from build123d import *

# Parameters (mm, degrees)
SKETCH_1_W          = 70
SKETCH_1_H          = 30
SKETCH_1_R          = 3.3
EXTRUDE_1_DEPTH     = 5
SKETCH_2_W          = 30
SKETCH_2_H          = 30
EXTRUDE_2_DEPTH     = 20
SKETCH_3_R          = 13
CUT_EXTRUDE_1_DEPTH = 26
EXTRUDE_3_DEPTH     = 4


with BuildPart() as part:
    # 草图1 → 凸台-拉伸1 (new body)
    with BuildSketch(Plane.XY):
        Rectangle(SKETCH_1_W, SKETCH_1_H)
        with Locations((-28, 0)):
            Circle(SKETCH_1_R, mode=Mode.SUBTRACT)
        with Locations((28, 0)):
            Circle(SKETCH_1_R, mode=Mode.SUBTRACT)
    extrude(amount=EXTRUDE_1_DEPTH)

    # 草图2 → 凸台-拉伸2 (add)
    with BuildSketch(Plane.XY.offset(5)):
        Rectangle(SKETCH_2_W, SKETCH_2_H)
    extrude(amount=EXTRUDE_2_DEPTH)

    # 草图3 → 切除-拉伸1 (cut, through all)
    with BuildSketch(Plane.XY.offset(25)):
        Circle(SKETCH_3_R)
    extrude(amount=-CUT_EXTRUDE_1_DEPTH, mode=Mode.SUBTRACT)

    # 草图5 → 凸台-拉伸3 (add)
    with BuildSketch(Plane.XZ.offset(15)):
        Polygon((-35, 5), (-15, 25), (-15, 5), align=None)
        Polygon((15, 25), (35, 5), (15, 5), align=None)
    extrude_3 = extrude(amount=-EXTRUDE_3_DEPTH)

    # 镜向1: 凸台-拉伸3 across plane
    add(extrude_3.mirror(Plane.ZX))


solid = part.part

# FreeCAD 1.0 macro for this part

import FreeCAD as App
import Part
import Sketcher
from FreeCAD import Vector

doc = App.newDocument("Part")
params = doc.addObject("Spreadsheet::Sheet", "Params")
for row, (alias, value) in enumerate([
    ("sketch1_diameter", "6.6 mm"),
    ("sketch1_width", "70 mm"),
    ("sketch1_height", "30 mm"),
    ("pad1_length", "5 mm"),
    ("sketch2_width", "30 mm"),
    ("pad2_length", "20 mm"),
    ("sketch3_diameter", "26 mm"),
    ("sketch4_width", "20 mm"),
    ("pad3_length", "4 mm"),
], start=1):
    params.set(f"A{row}", alias)
    params.set(f"B{row}", "=" + value)
    params.setAlias(f"B{row}", alias)

body = doc.addObject("PartDesign::Body", "Body")

# Sketch on XY plane
sketch1 = doc.addObject("Sketcher::SketchObject", "Sketch")
body.addObject(sketch1)
sketch1.AttachmentSupport = (doc.XY_Plane, [""])
sketch1.MapMode = "FlatFace"
sketch1.addGeometry([
    Part.LineSegment(Vector(-35, 15, 0), Vector(-35, -15, 0)),  # 0
    Part.LineSegment(Vector(-35, -15, 0), Vector(35, -15, 0)),  # 1
    Part.LineSegment(Vector(35, -15, 0), Vector(35, 15, 0)),  # 2
    Part.LineSegment(Vector(35, 15, 0), Vector(-35, 15, 0)),  # 3
    Part.Circle(Vector(-28, 0, 0), Vector(0, 0, 1), 3.3),  # 4
    Part.Circle(Vector(28, 0, 0), Vector(0, 0, 1), 3.3),  # 5
], False)
sketch1.addConstraint([
    Sketcher.Constraint("Coincident", 0, 2, 1, 1),
    Sketcher.Constraint("Coincident", 1, 2, 2, 1),
    Sketcher.Constraint("Coincident", 2, 2, 3, 1),
    Sketcher.Constraint("Coincident", 3, 2, 0, 1),
    Sketcher.Constraint("Vertical", 0),
    Sketcher.Constraint("Horizontal", 1),
    Sketcher.Constraint("Vertical", 2),
    Sketcher.Constraint("Horizontal", 3),
    Sketcher.Constraint("Equal", 4, 5),
    Sketcher.Constraint("Symmetric", 4, 3, 5, 3, -1, 1),
    Sketcher.Constraint("Symmetric", 0, 2, 2, 2, -1, 1),
    Sketcher.Constraint("PointOnObject", 4, 3, -1),
    Sketcher.Constraint("Diameter", 4, 6.6),
    Sketcher.Constraint("DistanceX", 1, 1, 1, 2, 70.0),
    Sketcher.Constraint("DistanceY", 0, 2, 0, 1, 30.0),
    Sketcher.Constraint("DistanceX", 4, 3, -1, 1, 28.0),
])
sketch1.setExpression("Constraints[12]", "Params.sketch1_diameter")
sketch1.setExpression("Constraints[13]", "Params.sketch1_width")
sketch1.setExpression("Constraints[14]", "Params.sketch1_height")
pad1 = doc.addObject("PartDesign::Pad", "Pad")
body.addObject(pad1)
pad1.Profile = sketch1
pad1.setExpression("Length", "Params.pad1_length")

# Sketch on XY plane
sketch2 = doc.addObject("Sketcher::SketchObject", "Sketch001")
body.addObject(sketch2)
sketch2.AttachmentSupport = (doc.XY_Plane, [""])
sketch2.MapMode = "FlatFace"
sketch2.AttachmentOffset = App.Placement(Vector(0, 0, 5), App.Rotation())
sketch2.addGeometry([
    Part.LineSegment(Vector(-15, 15, 0), Vector(-15, -15, 0)),
    Part.LineSegment(Vector(-15, -15, 0), Vector(15, -15, 0)),
    Part.LineSegment(Vector(15, -15, 0), Vector(15, 15, 0)),
    Part.LineSegment(Vector(15, 15, 0), Vector(-15, 15, 0)),
], False)
sketch2.addConstraint([
    Sketcher.Constraint("Coincident", 0, 2, 1, 1),
    Sketcher.Constraint("Coincident", 1, 2, 2, 1),
    Sketcher.Constraint("Coincident", 2, 2, 3, 1),
    Sketcher.Constraint("Coincident", 3, 2, 0, 1),
    Sketcher.Constraint("Vertical", 0),
    Sketcher.Constraint("Horizontal", 1),
    Sketcher.Constraint("Vertical", 2),
    Sketcher.Constraint("Horizontal", 3),
    Sketcher.Constraint("Symmetric", 0, 2, 2, 2, -1, 1),
    Sketcher.Constraint("Equal", 3, 0),
    Sketcher.Constraint("DistanceX", 1, 1, 1, 2, 30.0),
])
sketch2.setExpression("Constraints[10]", "Params.sketch2_width")
pad2 = doc.addObject("PartDesign::Pad", "Pad001")
body.addObject(pad2)
pad2.Profile = sketch2
pad2.setExpression("Length", "Params.pad2_length")

# Sketch on XY plane
sketch3 = doc.addObject("Sketcher::SketchObject", "Sketch002")
body.addObject(sketch3)
sketch3.AttachmentSupport = (doc.XY_Plane, [""])
sketch3.MapMode = "FlatFace"
sketch3.AttachmentOffset = App.Placement(Vector(0, 0, 25), App.Rotation())
sketch3.addGeometry(Part.Circle(Vector(0, 0, 0), Vector(0, 0, 1), 13), False)
sketch3.addConstraint([
    Sketcher.Constraint("Coincident", 0, 3, -1, 1),
    Sketcher.Constraint("Diameter", 0, 26.0),
])
sketch3.setExpression("Constraints[1]", "Params.sketch3_diameter")
pocket1 = doc.addObject("PartDesign::Pocket", "Pocket")
body.addObject(pocket1)
pocket1.Profile = sketch3
pocket1.Type = "ThroughAll"

# Sketch on XZ plane
sketch4 = doc.addObject("Sketcher::SketchObject", "Sketch003")
body.addObject(sketch4)
sketch4.AttachmentSupport = (doc.XZ_Plane, [""])
sketch4.MapMode = "FlatFace"
sketch4.AttachmentOffset = App.Placement(Vector(0, 0, 15), App.Rotation())
sketch4.addGeometry([
    Part.LineSegment(Vector(-15, 25, 0), Vector(-35, 5, 0)),  # 0
    Part.LineSegment(Vector(-35, 5, 0), Vector(-15, 5, 0)),  # 1
    Part.LineSegment(Vector(-15, 5, 0), Vector(-15, 25, 0)),  # 2
    Part.LineSegment(Vector(35, 5, 0), Vector(15, 25, 0)),  # 3
    Part.LineSegment(Vector(15, 25, 0), Vector(15, 5, 0)),  # 4
    Part.LineSegment(Vector(15, 5, 0), Vector(35, 5, 0)),  # 5
], False)
sketch4.addConstraint([
    Sketcher.Constraint("Coincident", 0, 2, 1, 1),
    Sketcher.Constraint("Coincident", 1, 2, 2, 1),
    Sketcher.Constraint("Coincident", 2, 2, 0, 1),
    Sketcher.Constraint("Coincident", 3, 2, 4, 1),
    Sketcher.Constraint("Coincident", 4, 2, 5, 1),
    Sketcher.Constraint("Coincident", 5, 2, 3, 1),
    Sketcher.Constraint("Horizontal", 1),
    Sketcher.Constraint("Vertical", 2),
    Sketcher.Constraint("Vertical", 4),
    Sketcher.Constraint("Horizontal", 5),
    Sketcher.Constraint("Symmetric", 2, 2, 3, 2, -2),
    Sketcher.Constraint("Symmetric", 0, 2, 5, 2, -2),
    Sketcher.Constraint("Perpendicular", 0, 3),
    Sketcher.Constraint("DistanceX", 1, 1, 1, 2, 20.0),
    Sketcher.Constraint("DistanceX", 0, 2, -1, 1, 35.0),
    Sketcher.Constraint("DistanceY", -1, 1, 0, 2, 5.0),
])
sketch4.setExpression("Constraints[13]", "Params.sketch4_width")
pad3 = doc.addObject("PartDesign::Pad", "Pad002")
body.addObject(pad3)
pad3.Profile = sketch4
pad3.setExpression("Length", "Params.pad3_length")
pad3.Reversed = True
doc.recompute()

mirrored = doc.addObject("PartDesign::Mirrored", "Mirrored")
body.addObject(mirrored)
mirrored.Originals = [pad3]
mirrored.MirrorPlane = (doc.XZ_Plane, [""])
body.Tip = mirrored

doc.recompute()
